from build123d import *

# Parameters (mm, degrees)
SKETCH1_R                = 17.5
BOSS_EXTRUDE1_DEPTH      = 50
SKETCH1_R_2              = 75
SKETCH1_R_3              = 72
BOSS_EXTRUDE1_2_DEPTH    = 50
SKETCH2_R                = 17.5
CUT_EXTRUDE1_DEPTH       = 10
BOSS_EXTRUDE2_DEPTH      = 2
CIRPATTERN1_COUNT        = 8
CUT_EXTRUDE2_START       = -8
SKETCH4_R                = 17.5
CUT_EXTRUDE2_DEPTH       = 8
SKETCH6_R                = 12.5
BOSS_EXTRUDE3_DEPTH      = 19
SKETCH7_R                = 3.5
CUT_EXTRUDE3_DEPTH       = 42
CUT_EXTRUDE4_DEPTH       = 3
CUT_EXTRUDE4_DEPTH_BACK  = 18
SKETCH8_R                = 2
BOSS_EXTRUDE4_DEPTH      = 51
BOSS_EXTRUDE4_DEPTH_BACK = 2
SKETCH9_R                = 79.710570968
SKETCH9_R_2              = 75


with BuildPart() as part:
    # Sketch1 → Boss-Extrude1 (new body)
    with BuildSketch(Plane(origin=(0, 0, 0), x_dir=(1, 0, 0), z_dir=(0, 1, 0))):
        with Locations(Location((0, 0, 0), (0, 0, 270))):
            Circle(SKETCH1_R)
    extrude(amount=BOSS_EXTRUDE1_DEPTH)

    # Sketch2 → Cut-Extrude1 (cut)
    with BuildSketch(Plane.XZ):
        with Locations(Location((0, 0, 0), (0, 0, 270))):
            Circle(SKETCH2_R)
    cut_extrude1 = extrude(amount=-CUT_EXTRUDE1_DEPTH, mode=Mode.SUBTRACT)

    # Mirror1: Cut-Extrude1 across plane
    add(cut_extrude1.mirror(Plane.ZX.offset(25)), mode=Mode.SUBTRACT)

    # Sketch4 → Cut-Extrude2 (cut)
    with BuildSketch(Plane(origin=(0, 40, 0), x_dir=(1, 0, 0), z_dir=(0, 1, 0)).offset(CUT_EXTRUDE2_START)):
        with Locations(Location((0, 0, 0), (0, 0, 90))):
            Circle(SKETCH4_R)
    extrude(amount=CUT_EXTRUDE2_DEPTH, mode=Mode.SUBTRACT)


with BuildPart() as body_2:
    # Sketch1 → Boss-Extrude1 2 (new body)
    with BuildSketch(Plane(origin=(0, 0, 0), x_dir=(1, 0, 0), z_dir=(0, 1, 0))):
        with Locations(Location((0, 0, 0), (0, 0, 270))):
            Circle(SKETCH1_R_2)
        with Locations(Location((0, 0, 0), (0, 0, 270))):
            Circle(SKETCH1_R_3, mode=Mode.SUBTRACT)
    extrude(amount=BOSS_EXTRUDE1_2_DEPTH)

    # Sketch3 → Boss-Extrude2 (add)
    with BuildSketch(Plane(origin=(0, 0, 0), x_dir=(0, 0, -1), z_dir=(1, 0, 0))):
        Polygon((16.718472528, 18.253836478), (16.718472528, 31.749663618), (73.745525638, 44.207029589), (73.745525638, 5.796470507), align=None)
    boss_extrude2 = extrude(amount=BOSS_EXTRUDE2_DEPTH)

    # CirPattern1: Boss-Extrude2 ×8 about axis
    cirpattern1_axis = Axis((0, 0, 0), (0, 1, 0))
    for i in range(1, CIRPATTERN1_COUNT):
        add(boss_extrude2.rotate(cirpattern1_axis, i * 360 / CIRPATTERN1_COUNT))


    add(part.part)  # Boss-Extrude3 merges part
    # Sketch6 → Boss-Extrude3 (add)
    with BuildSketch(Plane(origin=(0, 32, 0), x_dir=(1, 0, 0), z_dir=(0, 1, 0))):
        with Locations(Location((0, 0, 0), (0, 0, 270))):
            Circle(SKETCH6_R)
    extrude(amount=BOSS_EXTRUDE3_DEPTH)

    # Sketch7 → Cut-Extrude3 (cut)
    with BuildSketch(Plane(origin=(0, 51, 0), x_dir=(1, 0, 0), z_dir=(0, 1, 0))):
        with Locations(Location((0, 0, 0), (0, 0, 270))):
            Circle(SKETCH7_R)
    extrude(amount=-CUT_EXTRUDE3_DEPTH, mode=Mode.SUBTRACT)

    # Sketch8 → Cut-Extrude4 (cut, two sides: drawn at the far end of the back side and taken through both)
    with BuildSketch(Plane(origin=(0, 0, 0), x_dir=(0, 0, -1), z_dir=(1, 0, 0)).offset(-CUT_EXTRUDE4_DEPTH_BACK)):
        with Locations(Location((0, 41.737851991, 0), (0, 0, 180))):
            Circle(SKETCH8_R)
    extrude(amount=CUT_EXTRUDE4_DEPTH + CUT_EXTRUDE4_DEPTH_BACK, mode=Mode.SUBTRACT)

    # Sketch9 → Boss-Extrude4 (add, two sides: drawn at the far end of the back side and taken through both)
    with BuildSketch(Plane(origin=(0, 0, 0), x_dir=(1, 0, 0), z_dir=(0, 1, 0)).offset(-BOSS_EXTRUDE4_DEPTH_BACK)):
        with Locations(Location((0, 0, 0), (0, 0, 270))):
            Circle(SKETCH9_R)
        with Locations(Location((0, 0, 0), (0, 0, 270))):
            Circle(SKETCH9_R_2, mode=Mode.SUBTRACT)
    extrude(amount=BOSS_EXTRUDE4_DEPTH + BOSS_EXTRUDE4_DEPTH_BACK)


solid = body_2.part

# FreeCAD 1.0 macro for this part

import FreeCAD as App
import Part
import Sketcher

doc = App.newDocument("Part")
body = doc.addObject("PartDesign::Body", "Body")

# Sketch on XZ plane
sketch1 = body.newObject("Sketcher::SketchObject", "Sketch")
sketch1.AttachmentSupport = (doc.getObject("XZ_Plane"), [""])
sketch1.MapMode = "FlatFace"
sketch1.addGeometry(Part.Circle(App.Vector(0, 0, 0), App.Vector(0, 0, 1), 18), False)
sketch1.addConstraint(Sketcher.Constraint("Coincident", 0, 3, -1, 1))
sketch1.addConstraint(Sketcher.Constraint("Diameter", 0, 35.0))
pad1 = body.newObject("PartDesign::Pad", "Pad")
pad1.Profile = sketch1
pad1.Length = 50
pad1.Reversed = True

# Sketch on XZ plane
sketch2 = body.newObject("Sketcher::SketchObject", "Sketch001")
sketch2.AttachmentSupport = (doc.getObject("XZ_Plane"), [""])
sketch2.MapMode = "FlatFace"
sketch2.addGeometry(Part.Circle(App.Vector(0, 0, 0), App.Vector(0, 0, 1), 18), False)
sketch2.addConstraint(Sketcher.Constraint("Coincident", 0, 3, -1, 1))
sketch2.addConstraint(Sketcher.Constraint("Diameter", 0, 35.0))
pocket1 = body.newObject("PartDesign::Pocket", "Pocket")
pocket1.Profile = sketch2
pocket1.Length = 10
doc.recompute()

datumplane = body.newObject("PartDesign::Plane", "DatumPlane")
datumplane.AttachmentSupport = (doc.getObject("XZ_Plane"), [""])
datumplane.MapMode = "FlatFace"
datumplane.AttachmentOffset = App.Placement(App.Vector(0, 0, -25), App.Rotation())
mirrored = body.newObject("PartDesign::Mirrored", "Mirrored")
mirrored.Originals = [pocket1]
mirrored.MirrorPlane = (datumplane, [""])
body.Tip = mirrored

# Sketch on XZ plane
sketch3 = body.newObject("Sketcher::SketchObject", "Sketch002")
sketch3.AttachmentSupport = (doc.getObject("XZ_Plane"), [""])
sketch3.MapMode = "FlatFace"
sketch3.AttachmentOffset = App.Placement(App.Vector(0, 0, -32), App.Rotation())
sketch3.addGeometry(Part.Circle(App.Vector(0, 0, 0), App.Vector(0, 0, 1), 18), False)
sketch3.addConstraint(Sketcher.Constraint("Coincident", 0, 3, -1, 1))
sketch3.addConstraint(Sketcher.Constraint("Diameter", 0, 35.0))
pocket2 = body.newObject("PartDesign::Pocket", "Pocket001")
pocket2.Profile = sketch3
pocket2.Length = 8
body2 = doc.addObject("PartDesign::Body", "Body001")

# Sketch on XZ plane
sketch4 = body2.newObject("Sketcher::SketchObject", "Sketch003")
sketch4.AttachmentSupport = (doc.getObject("XZ_Plane001"), [""])
sketch4.MapMode = "FlatFace"
sketch4.addGeometry(Part.Circle(App.Vector(0, 0, 0), App.Vector(0, 0, 1), 75), False)
sketch4.addGeometry(Part.Circle(App.Vector(0, 0, 0), App.Vector(0, 0, 1), 72), False)
sketch4.addConstraint(Sketcher.Constraint("Coincident", 0, 3, -1, 1))
sketch4.addConstraint(Sketcher.Constraint("Coincident", 1, 3, -1, 1))
sketch4.addConstraint(Sketcher.Constraint("Diameter", 0, 150.0))
sketch4.addConstraint(Sketcher.Constraint("Diameter", 1, 144.0))
pad2 = body2.newObject("PartDesign::Pad", "Pad001")
pad2.Profile = sketch4
pad2.Length = 50
pad2.Reversed = True

# Sketch on YZ plane
sketch5 = body2.newObject("Sketcher::SketchObject", "Sketch004")
sketch5.AttachmentSupport = (doc.getObject("YZ_Plane001"), [""])
sketch5.MapMode = "FlatFace"
sketch5.addGeometry(Part.LineSegment(App.Vector(32, -17, 0), App.Vector(18, -17, 0)), False)
sketch5.addGeometry(Part.LineSegment(App.Vector(18, -17, 0), App.Vector(6, -74, 0)), False)
sketch5.addGeometry(Part.LineSegment(App.Vector(6, -74, 0), App.Vector(44, -74, 0)), False)
sketch5.addGeometry(Part.LineSegment(App.Vector(44, -74, 0), App.Vector(32, -17, 0)), False)
sketch5.addConstraint(Sketcher.Constraint("Coincident", 0, 2, 1, 1))
sketch5.addConstraint(Sketcher.Constraint("Coincident", 1, 2, 2, 1))
sketch5.addConstraint(Sketcher.Constraint("Coincident", 2, 2, 3, 1))
sketch5.addConstraint(Sketcher.Constraint("Coincident", 3, 2, 0, 1))
sketch5.addConstraint(Sketcher.Constraint("Horizontal", 0))
sketch5.addConstraint(Sketcher.Constraint("Horizontal", 2))
sketch5.addConstraint(Sketcher.Constraint("Equal", 1, 3))
sketch5.addConstraint(Sketcher.Constraint("DistanceX", 2, 1, 2, 2, 38.410559))
sketch5.addConstraint(Sketcher.Constraint("Distance", 1, 58.371832))
sketch5.addConstraint(Sketcher.Constraint("DistanceX", 0, 2, 0, 1, 13.495827))
sketch5.addConstraint(Sketcher.Constraint("DistanceX", -1, 1, 1, 2, 5.796471))
sketch5.addConstraint(Sketcher.Constraint("DistanceY", 0, 2, -1, 1, 16.718473))
pad3 = body2.newObject("PartDesign::Pad", "Pad002")
pad3.Profile = sketch5
pad3.Length = 2
doc.recompute()

polarpattern = body2.newObject("PartDesign::PolarPattern", "PolarPattern")
polarpattern.Originals = [pad3]
polarpattern.Axis = (doc.getObject("Y_Axis001"), [""])
polarpattern.Angle = 360
polarpattern.Occurrences = 8
body2.Tip = polarpattern
doc.recompute()

boolean = body2.newObject("PartDesign::Boolean", "Boolean")
boolean.Type = "Fuse"
boolean.addObjects([body])

# Sketch on XZ plane
sketch6 = body2.newObject("Sketcher::SketchObject", "Sketch005")
sketch6.AttachmentSupport = (doc.getObject("XZ_Plane001"), [""])
sketch6.MapMode = "FlatFace"
sketch6.AttachmentOffset = App.Placement(App.Vector(0, 0, -32), App.Rotation())
sketch6.addGeometry(Part.Circle(App.Vector(0, 0, 0), App.Vector(0, 0, 1), 12), False)
sketch6.addConstraint(Sketcher.Constraint("Coincident", 0, 3, -1, 1))
sketch6.addConstraint(Sketcher.Constraint("Diameter", 0, 25.0))
pad4 = body2.newObject("PartDesign::Pad", "Pad003")
pad4.Profile = sketch6
pad4.Length = 19
pad4.Reversed = True

# Sketch on XZ plane
sketch7 = body2.newObject("Sketcher::SketchObject", "Sketch006")
sketch7.AttachmentSupport = (doc.getObject("XZ_Plane001"), [""])
sketch7.MapMode = "FlatFace"
sketch7.AttachmentOffset = App.Placement(App.Vector(0, 0, -51), App.Rotation())
sketch7.addGeometry(Part.Circle(App.Vector(0, 0, 0), App.Vector(0, 0, 1), 3.5), False)
sketch7.addConstraint(Sketcher.Constraint("Coincident", 0, 3, -1, 1))
sketch7.addConstraint(Sketcher.Constraint("Diameter", 0, 7.0))
pocket3 = body2.newObject("PartDesign::Pocket", "Pocket002")
pocket3.Profile = sketch7
pocket3.Length = 42
pocket3.Reversed = True

# Sketch on YZ plane
sketch8 = body2.newObject("Sketcher::SketchObject", "Sketch007")
sketch8.AttachmentSupport = (doc.getObject("YZ_Plane001"), [""])
sketch8.MapMode = "FlatFace"
sketch8.addGeometry(Part.Circle(App.Vector(41.7, 0, 0), App.Vector(0, 0, 1), 2), False)
sketch8.addConstraint(Sketcher.Constraint("PointOnObject", 0, 3, -1))
sketch8.addConstraint(Sketcher.Constraint("Diameter", 0, 4.0))
sketch8.addConstraint(Sketcher.Constraint("DistanceX", -1, 1, 0, 3, 41.737852))
pocket4 = body2.newObject("PartDesign::Pocket", "Pocket003")
pocket4.Profile = sketch8
pocket4.Type = "TwoLengths"
pocket4.Length = 3
pocket4.Length2 = 18
pocket4.Reversed = True

# Sketch on XZ plane
sketch9 = body2.newObject("Sketcher::SketchObject", "Sketch008")
sketch9.AttachmentSupport = (doc.getObject("XZ_Plane001"), [""])
sketch9.MapMode = "FlatFace"
sketch9.addGeometry(Part.Circle(App.Vector(0, 0, 0), App.Vector(0, 0, 1), 80), False)
sketch9.addGeometry(Part.Circle(App.Vector(0, 0, 0), App.Vector(0, 0, 1), 75), False)
sketch9.addConstraint(Sketcher.Constraint("Coincident", 0, 3, -1, 1))
sketch9.addConstraint(Sketcher.Constraint("Coincident", 1, 3, -1, 1))
sketch9.addConstraint(Sketcher.Constraint("Diameter", 1, 150.0))
sketch9.addConstraint(Sketcher.Constraint("Diameter", 0, 159.421142))
pad5 = body2.newObject("PartDesign::Pad", "Pad004")
pad5.Profile = sketch9
pad5.Type = "TwoLengths"
pad5.Length = 51
pad5.Length2 = 2
pad5.Reversed = True

doc.recompute()
